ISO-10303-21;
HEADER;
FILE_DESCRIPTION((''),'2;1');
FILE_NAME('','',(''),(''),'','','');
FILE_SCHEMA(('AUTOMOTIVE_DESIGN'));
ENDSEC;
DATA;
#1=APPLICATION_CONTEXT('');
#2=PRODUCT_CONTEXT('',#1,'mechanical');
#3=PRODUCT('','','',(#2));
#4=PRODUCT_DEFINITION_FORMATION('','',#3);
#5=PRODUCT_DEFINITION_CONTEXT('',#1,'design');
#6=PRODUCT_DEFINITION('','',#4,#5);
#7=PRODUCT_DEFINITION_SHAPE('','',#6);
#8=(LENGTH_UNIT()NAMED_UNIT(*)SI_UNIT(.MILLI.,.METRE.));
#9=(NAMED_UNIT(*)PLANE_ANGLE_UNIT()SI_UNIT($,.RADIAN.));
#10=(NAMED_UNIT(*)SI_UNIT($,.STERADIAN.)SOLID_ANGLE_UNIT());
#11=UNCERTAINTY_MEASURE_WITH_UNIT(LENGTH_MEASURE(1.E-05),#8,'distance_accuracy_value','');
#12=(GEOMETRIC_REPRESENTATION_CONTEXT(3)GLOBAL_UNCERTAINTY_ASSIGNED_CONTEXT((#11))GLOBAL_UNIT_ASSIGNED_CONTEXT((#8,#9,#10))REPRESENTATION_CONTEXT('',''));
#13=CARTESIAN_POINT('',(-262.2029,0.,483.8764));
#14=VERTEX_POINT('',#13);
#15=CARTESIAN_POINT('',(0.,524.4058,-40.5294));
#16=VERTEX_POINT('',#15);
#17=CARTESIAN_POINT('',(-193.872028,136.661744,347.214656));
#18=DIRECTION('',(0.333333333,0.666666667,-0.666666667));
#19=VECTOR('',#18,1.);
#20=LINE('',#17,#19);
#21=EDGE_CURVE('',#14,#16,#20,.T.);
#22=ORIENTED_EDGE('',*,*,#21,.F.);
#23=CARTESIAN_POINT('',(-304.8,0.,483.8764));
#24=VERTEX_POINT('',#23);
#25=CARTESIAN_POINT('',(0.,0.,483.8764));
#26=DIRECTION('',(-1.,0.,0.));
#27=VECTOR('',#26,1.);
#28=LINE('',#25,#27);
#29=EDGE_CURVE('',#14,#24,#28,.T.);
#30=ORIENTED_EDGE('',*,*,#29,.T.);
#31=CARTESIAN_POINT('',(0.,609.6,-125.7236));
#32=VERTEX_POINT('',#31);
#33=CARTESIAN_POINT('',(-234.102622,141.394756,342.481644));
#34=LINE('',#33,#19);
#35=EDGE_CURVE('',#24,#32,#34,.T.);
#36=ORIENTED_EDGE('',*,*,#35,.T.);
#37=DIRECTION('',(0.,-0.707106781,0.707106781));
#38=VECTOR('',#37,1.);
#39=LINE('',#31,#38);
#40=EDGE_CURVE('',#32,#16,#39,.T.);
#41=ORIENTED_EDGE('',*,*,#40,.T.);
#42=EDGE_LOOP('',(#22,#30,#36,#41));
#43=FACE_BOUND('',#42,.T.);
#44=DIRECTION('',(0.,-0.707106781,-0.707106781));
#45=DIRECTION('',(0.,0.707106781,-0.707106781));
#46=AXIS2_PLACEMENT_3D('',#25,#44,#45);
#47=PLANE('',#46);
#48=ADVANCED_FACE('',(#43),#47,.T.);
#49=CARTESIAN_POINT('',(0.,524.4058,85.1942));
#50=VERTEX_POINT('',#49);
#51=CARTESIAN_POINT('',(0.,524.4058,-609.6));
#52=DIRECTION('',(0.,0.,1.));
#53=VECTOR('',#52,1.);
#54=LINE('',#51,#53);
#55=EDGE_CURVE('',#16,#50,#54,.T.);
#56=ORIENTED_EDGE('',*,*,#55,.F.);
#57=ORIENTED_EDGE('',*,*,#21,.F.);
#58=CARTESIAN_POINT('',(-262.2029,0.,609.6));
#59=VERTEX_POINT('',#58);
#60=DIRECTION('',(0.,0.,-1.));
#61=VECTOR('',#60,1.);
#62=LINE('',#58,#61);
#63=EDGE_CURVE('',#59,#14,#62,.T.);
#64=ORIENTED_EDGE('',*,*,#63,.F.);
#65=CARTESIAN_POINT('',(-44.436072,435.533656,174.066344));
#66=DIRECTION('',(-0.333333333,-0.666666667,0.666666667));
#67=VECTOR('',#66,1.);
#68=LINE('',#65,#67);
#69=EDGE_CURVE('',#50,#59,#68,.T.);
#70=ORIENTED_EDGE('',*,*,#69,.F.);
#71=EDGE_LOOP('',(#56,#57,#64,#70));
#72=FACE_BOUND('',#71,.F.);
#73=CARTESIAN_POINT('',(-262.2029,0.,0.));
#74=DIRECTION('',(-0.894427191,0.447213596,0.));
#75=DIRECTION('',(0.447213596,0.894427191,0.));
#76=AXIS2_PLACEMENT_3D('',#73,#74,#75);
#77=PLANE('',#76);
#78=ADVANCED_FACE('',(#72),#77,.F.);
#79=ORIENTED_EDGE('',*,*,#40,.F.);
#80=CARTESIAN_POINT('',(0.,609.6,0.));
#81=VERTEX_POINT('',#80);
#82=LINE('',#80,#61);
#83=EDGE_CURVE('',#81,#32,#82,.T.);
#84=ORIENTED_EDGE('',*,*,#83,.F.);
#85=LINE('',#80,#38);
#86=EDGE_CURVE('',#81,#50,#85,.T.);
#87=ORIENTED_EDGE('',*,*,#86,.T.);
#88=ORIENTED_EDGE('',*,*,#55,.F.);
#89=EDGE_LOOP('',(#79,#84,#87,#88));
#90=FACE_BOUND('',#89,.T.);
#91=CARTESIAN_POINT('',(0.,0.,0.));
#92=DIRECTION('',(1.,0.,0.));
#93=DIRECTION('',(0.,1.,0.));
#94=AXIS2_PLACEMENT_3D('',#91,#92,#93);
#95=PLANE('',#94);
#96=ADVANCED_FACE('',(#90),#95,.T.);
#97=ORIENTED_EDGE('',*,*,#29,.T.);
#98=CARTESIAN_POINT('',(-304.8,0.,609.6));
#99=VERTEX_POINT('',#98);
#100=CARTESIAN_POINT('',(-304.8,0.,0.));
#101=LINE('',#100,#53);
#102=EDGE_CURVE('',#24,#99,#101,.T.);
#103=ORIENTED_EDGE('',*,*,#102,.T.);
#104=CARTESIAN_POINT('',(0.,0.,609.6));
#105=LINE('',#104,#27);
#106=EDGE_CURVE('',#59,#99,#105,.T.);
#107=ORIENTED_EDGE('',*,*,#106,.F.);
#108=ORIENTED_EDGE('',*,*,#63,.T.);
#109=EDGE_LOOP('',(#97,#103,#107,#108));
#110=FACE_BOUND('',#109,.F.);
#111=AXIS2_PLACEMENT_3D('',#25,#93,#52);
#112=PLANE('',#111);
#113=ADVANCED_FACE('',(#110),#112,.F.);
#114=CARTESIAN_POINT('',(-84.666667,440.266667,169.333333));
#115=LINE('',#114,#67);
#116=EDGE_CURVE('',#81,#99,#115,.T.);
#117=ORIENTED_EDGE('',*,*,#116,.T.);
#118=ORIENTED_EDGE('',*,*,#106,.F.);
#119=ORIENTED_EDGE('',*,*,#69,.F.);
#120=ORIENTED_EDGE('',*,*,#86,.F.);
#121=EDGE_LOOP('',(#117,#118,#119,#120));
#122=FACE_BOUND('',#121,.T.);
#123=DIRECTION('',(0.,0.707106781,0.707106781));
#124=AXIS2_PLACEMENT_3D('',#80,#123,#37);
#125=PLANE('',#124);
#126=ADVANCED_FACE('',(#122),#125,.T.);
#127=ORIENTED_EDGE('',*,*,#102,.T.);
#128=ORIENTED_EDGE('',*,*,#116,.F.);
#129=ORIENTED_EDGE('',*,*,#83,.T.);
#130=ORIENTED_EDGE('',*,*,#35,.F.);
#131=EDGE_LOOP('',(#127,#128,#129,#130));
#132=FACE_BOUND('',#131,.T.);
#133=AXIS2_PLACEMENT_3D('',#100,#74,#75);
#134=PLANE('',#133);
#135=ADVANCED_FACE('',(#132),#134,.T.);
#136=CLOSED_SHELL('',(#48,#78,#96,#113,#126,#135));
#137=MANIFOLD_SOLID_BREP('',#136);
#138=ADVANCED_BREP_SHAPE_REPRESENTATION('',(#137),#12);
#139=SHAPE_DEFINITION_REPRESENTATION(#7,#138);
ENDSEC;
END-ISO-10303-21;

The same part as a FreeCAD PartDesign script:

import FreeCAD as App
import Part
import Sketcher

V = App.Vector
Q = App.Units.Quantity


def add_polygon(sketch, points):
    """Adds a closed chain of lines whose ends are joined by coincident constraints."""
    first, n = sketch.GeometryCount, len(points)
    for a, b in zip(points, points[1:] + points[:1]):
        sketch.addGeometry(Part.LineSegment(App.Vector(*a, 0), App.Vector(*b, 0)), False)
    for i in range(n):
        sketch.addConstraint(Sketcher.Constraint("Coincident", first + i, 2, first + (i + 1) % n, 1))

doc = App.newDocument("Part")
body = doc.addObject("PartDesign::Body", "Body")

sketch1 = body.newObject("Sketcher::SketchObject", "Sketch")
sketch1.AttachmentSupport = (doc.getObject("YZ_Plane"), [""])
sketch1.MapMode = "FlatFace"
add_polygon(sketch1, [(0, 609.6), (0, 483.8764), (609.6, -125.7236), (609.6, 0)])
sketch1.addConstraint([
    Sketcher.Constraint("Vertical", 0),
    Sketcher.Constraint("Vertical", 2),
    Sketcher.Constraint("PointOnObject", 0, 2, -2),
    Sketcher.Constraint("PointOnObject", 2, 2, -1),
    Sketcher.Constraint("Parallel", 1, 3),
    Sketcher.Constraint("DistanceX", -1, 1, 1, 2, Q("24 in")),
    Sketcher.Constraint("DistanceY", -1, 1, 3, 2, Q("24 in")),
    Sketcher.Constraint("DistanceY", 0, 2, 0, 1, 125.7236),
])
pad1 = body.newObject("PartDesign::Pad", "Pad")
pad1.Profile = sketch1
pad1.Length = Q("12 in")
pad1.Reversed = True

sketch2 = body.newObject("Sketcher::SketchObject", "Sketch001")
sketch2.AttachmentSupport = (doc.getObject("XY_Plane"), [""])
sketch2.MapMode = "FlatFace"
add_polygon(sketch2, [(-262.2029, 0), (0, 0), (0, 524.4058)])
add_polygon(sketch2, [(-304.8, 0), (0, 609.6), (-304.8, 609.6)])
sketch2.addConstraint([
    Sketcher.Constraint("Horizontal", 0),
    Sketcher.Constraint("Vertical", 1),
    Sketcher.Constraint("Horizontal", 4),
    Sketcher.Constraint("Vertical", 5),
    Sketcher.Constraint("Coincident", 0, 2, -1, 1),
    Sketcher.Constraint("PointOnObject", 3, 2, -2),
    Sketcher.Constraint("PointOnObject", 5, 2, -1),
    Sketcher.Constraint("Parallel", 2, 3),
    Sketcher.Constraint("DistanceX", 4, 2, 4, 1, Q("12 in")),
    Sketcher.Constraint("DistanceY", 5, 2, 5, 1, Q("24 in")),
    Sketcher.Constraint("DistanceY", 1, 1, 1, 2, Q("20.6459 in")),
])
pocket1 = body.newObject("PartDesign::Pocket", "Pocket")
pocket1.Profile = sketch2
pocket1.Length = Q("48 in")
pocket1.Midplane = True

doc.recompute()
